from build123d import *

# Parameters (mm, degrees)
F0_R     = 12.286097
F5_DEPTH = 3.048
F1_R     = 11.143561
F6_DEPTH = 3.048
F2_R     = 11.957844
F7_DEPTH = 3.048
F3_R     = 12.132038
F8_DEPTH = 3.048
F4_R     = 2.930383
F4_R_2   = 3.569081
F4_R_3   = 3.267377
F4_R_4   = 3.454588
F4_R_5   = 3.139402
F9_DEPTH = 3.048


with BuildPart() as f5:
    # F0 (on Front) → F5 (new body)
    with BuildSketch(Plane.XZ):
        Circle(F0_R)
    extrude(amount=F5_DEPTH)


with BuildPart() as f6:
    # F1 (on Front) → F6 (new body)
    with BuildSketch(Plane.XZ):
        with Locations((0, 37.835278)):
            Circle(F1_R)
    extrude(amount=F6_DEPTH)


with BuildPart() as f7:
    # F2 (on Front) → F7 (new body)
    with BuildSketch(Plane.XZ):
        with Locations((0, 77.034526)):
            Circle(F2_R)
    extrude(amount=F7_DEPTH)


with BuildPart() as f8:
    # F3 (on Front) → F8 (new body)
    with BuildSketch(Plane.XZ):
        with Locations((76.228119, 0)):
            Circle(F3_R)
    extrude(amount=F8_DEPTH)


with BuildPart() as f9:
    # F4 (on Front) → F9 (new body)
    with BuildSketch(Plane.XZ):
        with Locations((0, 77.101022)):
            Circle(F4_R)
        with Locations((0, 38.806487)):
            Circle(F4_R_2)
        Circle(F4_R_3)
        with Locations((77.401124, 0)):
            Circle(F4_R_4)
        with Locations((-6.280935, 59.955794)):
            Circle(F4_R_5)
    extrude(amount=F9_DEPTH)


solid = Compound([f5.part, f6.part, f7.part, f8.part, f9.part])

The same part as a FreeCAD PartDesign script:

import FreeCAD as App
import Part
import Sketcher
Q = App.Units.Quantity

doc = App.newDocument("Part")
body = doc.addObject("PartDesign::Body", "Body")

sketch1 = doc.addObject("Sketcher::SketchObject", "Sketch")
body.addObject(sketch1)
sketch1.AttachmentSupport = (doc.XZ_Plane, [""])
sketch1.MapMode = "FlatFace"
sketch1.addGeometry(Part.Circle(App.Vector(0, 0, 0), App.Vector(0, 0, 1), 12), False)
sketch1.addConstraint(Sketcher.Constraint("Coincident", 0, 3, -1, 1))
sketch1.addConstraint(Sketcher.Constraint("Diameter", 0, Q("24.572194 mm")))
pad1 = doc.addObject("PartDesign::Pad", "Pad")
body.addObject(pad1)
pad1.Profile = sketch1
pad1.Length = Q("0.12 in")
body2 = doc.addObject("PartDesign::Body", "Body001")

sketch2 = doc.addObject("Sketcher::SketchObject", "Sketch001")
body2.addObject(sketch2)
sketch2.AttachmentSupport = (doc.getObject("XZ_Plane001"), [""])
sketch2.MapMode = "FlatFace"
sketch2.addGeometry(Part.Circle(App.Vector(0, 38, 0), App.Vector(0, 0, 1), 11), False)
sketch2.addConstraint(Sketcher.Constraint("PointOnObject", 0, 3, -2))
sketch2.addConstraint(Sketcher.Constraint("Diameter", 0, Q("22.287122 mm")))
sketch2.addConstraint(Sketcher.Constraint("DistanceY", -1, 1, 0, 3, Q("37.835278 mm")))
pad2 = doc.addObject("PartDesign::Pad", "Pad001")
body2.addObject(pad2)
pad2.Profile = sketch2
pad2.Length = Q("0.12 in")
body3 = doc.addObject("PartDesign::Body", "Body002")

sketch3 = doc.addObject("Sketcher::SketchObject", "Sketch002")
body3.addObject(sketch3)
sketch3.AttachmentSupport = (doc.getObject("XZ_Plane002"), [""])
sketch3.MapMode = "FlatFace"
sketch3.addGeometry(Part.Circle(App.Vector(0, 77, 0), App.Vector(0, 0, 1), 12), False)
sketch3.addConstraint(Sketcher.Constraint("PointOnObject", 0, 3, -2))
sketch3.addConstraint(Sketcher.Constraint("Diameter", 0, Q("23.915688 mm")))
sketch3.addConstraint(Sketcher.Constraint("DistanceY", -1, 1, 0, 3, Q("77.034526 mm")))
pad3 = doc.addObject("PartDesign::Pad", "Pad002")
body3.addObject(pad3)
pad3.Profile = sketch3
pad3.Length = Q("0.12 in")
body4 = doc.addObject("PartDesign::Body", "Body003")

sketch4 = doc.addObject("Sketcher::SketchObject", "Sketch003")
body4.addObject(sketch4)
sketch4.AttachmentSupport = (doc.getObject("XZ_Plane003"), [""])
sketch4.MapMode = "FlatFace"
sketch4.addGeometry(Part.Circle(App.Vector(76, 0, 0), App.Vector(0, 0, 1), 12), False)
sketch4.addConstraint(Sketcher.Constraint("PointOnObject", 0, 3, -1))
sketch4.addConstraint(Sketcher.Constraint("Diameter", 0, Q("24.264076 mm")))
sketch4.addConstraint(Sketcher.Constraint("DistanceX", -1, 1, 0, 3, Q("76.228119 mm")))
pad4 = doc.addObject("PartDesign::Pad", "Pad003")
body4.addObject(pad4)
pad4.Profile = sketch4
pad4.Length = Q("0.12 in")
body5 = doc.addObject("PartDesign::Body", "Body004")
body5.AllowCompound = True

sketch5 = doc.addObject("Sketcher::SketchObject", "Sketch004")
body5.addObject(sketch5)
sketch5.AttachmentSupport = (doc.getObject("XZ_Plane004"), [""])
sketch5.MapMode = "FlatFace"
sketch5.addGeometry(Part.Circle(App.Vector(0, 77.1, 0), App.Vector(0, 0, 1), 2.9), False)
sketch5.addGeometry(Part.Circle(App.Vector(0, 38.8, 0), App.Vector(0, 0, 1), 3.6), False)
sketch5.addGeometry(Part.Circle(App.Vector(0, 0, 0), App.Vector(0, 0, 1), 3.3), False)
sketch5.addGeometry(Part.Circle(App.Vector(77.4, 0, 0), App.Vector(0, 0, 1), 3.5), False)
sketch5.addGeometry(Part.Circle(App.Vector(-6.3, 60, 0), App.Vector(0, 0, 1), 3.1), False)
sketch5.addConstraint(Sketcher.Constraint("Coincident", 2, 3, -1, 1))
sketch5.addConstraint(Sketcher.Constraint("PointOnObject", 0, 3, -2))
sketch5.addConstraint(Sketcher.Constraint("PointOnObject", 1, 3, -2))
sketch5.addConstraint(Sketcher.Constraint("PointOnObject", 3, 3, -1))
sketch5.addConstraint(Sketcher.Constraint("Diameter", 0, Q("5.860766 mm")))
sketch5.addConstraint(Sketcher.Constraint("Diameter", 1, Q("7.138162 mm")))
sketch5.addConstraint(Sketcher.Constraint("Diameter", 2, Q("6.534754 mm")))
sketch5.addConstraint(Sketcher.Constraint("Diameter", 3, Q("6.909176 mm")))
sketch5.addConstraint(Sketcher.Constraint("Diameter", 4, Q("6.278804 mm")))
sketch5.addConstraint(Sketcher.Constraint("DistanceY", -1, 1, 0, 3, Q("77.101022 mm")))
sketch5.addConstraint(Sketcher.Constraint("DistanceY", 4, 3, 0, 3, Q("17.145228 mm")))
sketch5.addConstraint(Sketcher.Constraint("DistanceX", 4, 3, 3, 3, Q("83.682059 mm")))
sketch5.addConstraint(Sketcher.Constraint("DistanceY", -1, 1, 1, 3, Q("38.806487 mm")))
sketch5.addConstraint(Sketcher.Constraint("DistanceX", -1, 1, 3, 3, Q("77.401124 mm")))
pad5 = doc.addObject("PartDesign::Pad", "Pad004")
body5.addObject(pad5)
pad5.Profile = sketch5
pad5.Length = Q("0.12 in")

doc.recompute()
